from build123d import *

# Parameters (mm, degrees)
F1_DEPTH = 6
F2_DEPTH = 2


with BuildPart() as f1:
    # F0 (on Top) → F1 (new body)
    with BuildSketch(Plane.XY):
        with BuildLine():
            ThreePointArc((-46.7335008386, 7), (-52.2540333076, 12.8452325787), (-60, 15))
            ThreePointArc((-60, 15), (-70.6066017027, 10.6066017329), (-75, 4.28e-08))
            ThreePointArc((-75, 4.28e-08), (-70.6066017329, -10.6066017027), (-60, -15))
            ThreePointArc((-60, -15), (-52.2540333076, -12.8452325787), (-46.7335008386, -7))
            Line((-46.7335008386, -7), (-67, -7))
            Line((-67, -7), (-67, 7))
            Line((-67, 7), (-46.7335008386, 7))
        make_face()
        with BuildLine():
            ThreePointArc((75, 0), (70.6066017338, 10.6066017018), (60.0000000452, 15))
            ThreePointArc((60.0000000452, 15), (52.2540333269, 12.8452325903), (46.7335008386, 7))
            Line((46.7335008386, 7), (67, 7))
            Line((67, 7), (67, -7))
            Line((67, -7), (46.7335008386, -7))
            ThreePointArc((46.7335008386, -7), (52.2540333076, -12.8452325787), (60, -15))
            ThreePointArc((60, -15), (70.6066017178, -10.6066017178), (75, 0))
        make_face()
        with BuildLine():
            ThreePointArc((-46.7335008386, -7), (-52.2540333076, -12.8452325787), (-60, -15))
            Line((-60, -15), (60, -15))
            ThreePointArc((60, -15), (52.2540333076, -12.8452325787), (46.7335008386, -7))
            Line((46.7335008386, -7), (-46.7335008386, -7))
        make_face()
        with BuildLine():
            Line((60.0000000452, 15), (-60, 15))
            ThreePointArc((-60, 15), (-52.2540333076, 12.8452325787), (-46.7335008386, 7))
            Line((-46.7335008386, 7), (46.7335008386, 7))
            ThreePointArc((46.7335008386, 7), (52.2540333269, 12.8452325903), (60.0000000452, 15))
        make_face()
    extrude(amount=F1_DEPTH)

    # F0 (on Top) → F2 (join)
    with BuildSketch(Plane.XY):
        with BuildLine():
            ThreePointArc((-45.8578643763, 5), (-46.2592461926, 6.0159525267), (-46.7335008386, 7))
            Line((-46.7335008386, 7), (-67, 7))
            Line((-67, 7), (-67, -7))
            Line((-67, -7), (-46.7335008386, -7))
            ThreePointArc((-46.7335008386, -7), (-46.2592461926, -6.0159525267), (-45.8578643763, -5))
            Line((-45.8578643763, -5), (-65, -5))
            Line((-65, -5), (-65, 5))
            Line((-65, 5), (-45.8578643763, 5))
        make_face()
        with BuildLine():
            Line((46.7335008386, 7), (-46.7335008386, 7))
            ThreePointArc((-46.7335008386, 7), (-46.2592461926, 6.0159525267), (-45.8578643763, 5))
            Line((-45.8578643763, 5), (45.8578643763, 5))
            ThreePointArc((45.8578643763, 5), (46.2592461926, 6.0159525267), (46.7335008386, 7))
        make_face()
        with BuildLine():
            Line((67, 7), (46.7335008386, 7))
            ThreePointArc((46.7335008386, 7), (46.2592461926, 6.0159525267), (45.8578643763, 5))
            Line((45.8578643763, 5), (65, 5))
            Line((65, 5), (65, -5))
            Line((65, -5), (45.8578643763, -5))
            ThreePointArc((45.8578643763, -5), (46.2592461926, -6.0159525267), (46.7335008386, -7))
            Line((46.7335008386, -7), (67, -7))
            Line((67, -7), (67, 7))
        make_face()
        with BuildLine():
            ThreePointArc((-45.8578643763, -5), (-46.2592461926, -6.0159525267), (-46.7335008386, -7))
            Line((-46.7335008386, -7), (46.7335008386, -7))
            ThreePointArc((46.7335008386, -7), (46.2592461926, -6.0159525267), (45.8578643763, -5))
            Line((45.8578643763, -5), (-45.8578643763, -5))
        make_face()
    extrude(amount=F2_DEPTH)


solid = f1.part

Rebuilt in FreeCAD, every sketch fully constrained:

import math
import FreeCAD as App
import Part
import Sketcher

doc = App.newDocument("Part")
body = doc.addObject("PartDesign::Body", "Body")

# Sketch on XY plane
sketch1 = doc.addObject("Sketcher::SketchObject", "Sketch")
body.addObject(sketch1)
sketch1.AttachmentSupport = (doc.XY_Plane, [""])
sketch1.MapMode = "FlatFace"
sketch1.addGeometry([
    Part.ArcOfCircle(Part.Circle(App.Vector(-60, 0, 0), App.Vector(0, 0, 1), 15), math.radians(90), math.radians(270)),  # 0
    Part.LineSegment(App.Vector(-60, -15, 0), App.Vector(60, -15, 0)),  # 1
    Part.ArcOfCircle(Part.Circle(App.Vector(60, 0, 0), App.Vector(0, 0, 1), 15), math.radians(-90), math.radians(90)),  # 2
    Part.LineSegment(App.Vector(60, 15, 0), App.Vector(-60, 15, 0)),  # 3
    Part.LineSegment(App.Vector(67, 7, 0), App.Vector(67, -7, 0)),  # 4
    Part.LineSegment(App.Vector(67, -7, 0), App.Vector(-67, -7, 0)),  # 5
    Part.LineSegment(App.Vector(-67, -7, 0), App.Vector(-67, 7, 0)),  # 6
    Part.LineSegment(App.Vector(-67, 7, 0), App.Vector(67, 7, 0)),  # 7
], False)
sketch1.addConstraint([
    Sketcher.Constraint("Tangent", 0, 2, 1, 1),
    Sketcher.Constraint("Tangent", 1, 2, 2, 1),
    Sketcher.Constraint("Tangent", 2, 2, 3, 1),
    Sketcher.Constraint("Tangent", 3, 2, 0, 1),
    Sketcher.Constraint("Coincident", 4, 2, 5, 1),
    Sketcher.Constraint("Coincident", 5, 2, 6, 1),
    Sketcher.Constraint("Coincident", 6, 2, 7, 1),
    Sketcher.Constraint("Coincident", 7, 2, 4, 1),
    Sketcher.Constraint("Horizontal", 1),
    Sketcher.Constraint("Horizontal", 3),
    Sketcher.Constraint("Vertical", 4),
    Sketcher.Constraint("Horizontal", 5),
    Sketcher.Constraint("Vertical", 6),
    Sketcher.Constraint("Horizontal", 7),
    Sketcher.Constraint("Symmetric", 0, 3, 2, 3, -1, 1),
    Sketcher.Constraint("Symmetric", 4, 2, 6, 2, -1, 1),
    Sketcher.Constraint("Radius", 0, 15.0),
    Sketcher.Constraint("DistanceX", 1, 1, 1, 2, 120.0),
    Sketcher.Constraint("DistanceX", 5, 2, 5, 1, 134.0),
    Sketcher.Constraint("DistanceY", 4, 2, 4, 1, 14.0),
])
pad1 = doc.addObject("PartDesign::Pad", "Pad")
body.addObject(pad1)
pad1.Profile = sketch1
pad1.Length = 6

# Sketch on XY plane
sketch2 = doc.addObject("Sketcher::SketchObject", "Sketch001")
body.addObject(sketch2)
sketch2.AttachmentSupport = (doc.XY_Plane, [""])
sketch2.MapMode = "FlatFace"
sketch2.addGeometry([
    Part.LineSegment(App.Vector(-67, 7, 0), App.Vector(-67, -7, 0)),  # 0
    Part.LineSegment(App.Vector(-67, -7, 0), App.Vector(67, -7, 0)),  # 1
    Part.LineSegment(App.Vector(67, -7, 0), App.Vector(67, 7, 0)),  # 2
    Part.LineSegment(App.Vector(67, 7, 0), App.Vector(-67, 7, 0)),  # 3
    Part.LineSegment(App.Vector(-65, -5, 0), App.Vector(-65, 5, 0)),  # 4
    Part.LineSegment(App.Vector(-65, 5, 0), App.Vector(65, 5, 0)),  # 5
    Part.LineSegment(App.Vector(65, 5, 0), App.Vector(65, -5, 0)),  # 6
    Part.LineSegment(App.Vector(65, -5, 0), App.Vector(-65, -5, 0)),  # 7
], False)
sketch2.addConstraint([
    Sketcher.Constraint("Coincident", 0, 2, 1, 1),
    Sketcher.Constraint("Coincident", 1, 2, 2, 1),
    Sketcher.Constraint("Coincident", 2, 2, 3, 1),
    Sketcher.Constraint("Coincident", 3, 2, 0, 1),
    Sketcher.Constraint("Coincident", 4, 2, 5, 1),
    Sketcher.Constraint("Coincident", 5, 2, 6, 1),
    Sketcher.Constraint("Coincident", 6, 2, 7, 1),
    Sketcher.Constraint("Coincident", 7, 2, 4, 1),
    Sketcher.Constraint("Vertical", 0),
    Sketcher.Constraint("Horizontal", 1),
    Sketcher.Constraint("Vertical", 2),
    Sketcher.Constraint("Horizontal", 3),
    Sketcher.Constraint("Vertical", 4),
    Sketcher.Constraint("Horizontal", 5),
    Sketcher.Constraint("Vertical", 6),
    Sketcher.Constraint("Horizontal", 7),
    Sketcher.Constraint("Symmetric", 0, 2, 2, 2, -1, 1),
    Sketcher.Constraint("Symmetric", 4, 2, 6, 2, -1, 1),
    Sketcher.Constraint("DistanceX", 1, 1, 1, 2, 134.0),
    Sketcher.Constraint("DistanceX", 5, 1, 5, 2, 130.0),
    Sketcher.Constraint("DistanceY", 0, 2, 0, 1, 14.0),
    Sketcher.Constraint("DistanceY", 4, 1, 4, 2, 10.0),
])
pad2 = doc.addObject("PartDesign::Pad", "Pad001")
body.addObject(pad2)
pad2.Profile = sketch2
pad2.Length = 2

doc.recompute()
